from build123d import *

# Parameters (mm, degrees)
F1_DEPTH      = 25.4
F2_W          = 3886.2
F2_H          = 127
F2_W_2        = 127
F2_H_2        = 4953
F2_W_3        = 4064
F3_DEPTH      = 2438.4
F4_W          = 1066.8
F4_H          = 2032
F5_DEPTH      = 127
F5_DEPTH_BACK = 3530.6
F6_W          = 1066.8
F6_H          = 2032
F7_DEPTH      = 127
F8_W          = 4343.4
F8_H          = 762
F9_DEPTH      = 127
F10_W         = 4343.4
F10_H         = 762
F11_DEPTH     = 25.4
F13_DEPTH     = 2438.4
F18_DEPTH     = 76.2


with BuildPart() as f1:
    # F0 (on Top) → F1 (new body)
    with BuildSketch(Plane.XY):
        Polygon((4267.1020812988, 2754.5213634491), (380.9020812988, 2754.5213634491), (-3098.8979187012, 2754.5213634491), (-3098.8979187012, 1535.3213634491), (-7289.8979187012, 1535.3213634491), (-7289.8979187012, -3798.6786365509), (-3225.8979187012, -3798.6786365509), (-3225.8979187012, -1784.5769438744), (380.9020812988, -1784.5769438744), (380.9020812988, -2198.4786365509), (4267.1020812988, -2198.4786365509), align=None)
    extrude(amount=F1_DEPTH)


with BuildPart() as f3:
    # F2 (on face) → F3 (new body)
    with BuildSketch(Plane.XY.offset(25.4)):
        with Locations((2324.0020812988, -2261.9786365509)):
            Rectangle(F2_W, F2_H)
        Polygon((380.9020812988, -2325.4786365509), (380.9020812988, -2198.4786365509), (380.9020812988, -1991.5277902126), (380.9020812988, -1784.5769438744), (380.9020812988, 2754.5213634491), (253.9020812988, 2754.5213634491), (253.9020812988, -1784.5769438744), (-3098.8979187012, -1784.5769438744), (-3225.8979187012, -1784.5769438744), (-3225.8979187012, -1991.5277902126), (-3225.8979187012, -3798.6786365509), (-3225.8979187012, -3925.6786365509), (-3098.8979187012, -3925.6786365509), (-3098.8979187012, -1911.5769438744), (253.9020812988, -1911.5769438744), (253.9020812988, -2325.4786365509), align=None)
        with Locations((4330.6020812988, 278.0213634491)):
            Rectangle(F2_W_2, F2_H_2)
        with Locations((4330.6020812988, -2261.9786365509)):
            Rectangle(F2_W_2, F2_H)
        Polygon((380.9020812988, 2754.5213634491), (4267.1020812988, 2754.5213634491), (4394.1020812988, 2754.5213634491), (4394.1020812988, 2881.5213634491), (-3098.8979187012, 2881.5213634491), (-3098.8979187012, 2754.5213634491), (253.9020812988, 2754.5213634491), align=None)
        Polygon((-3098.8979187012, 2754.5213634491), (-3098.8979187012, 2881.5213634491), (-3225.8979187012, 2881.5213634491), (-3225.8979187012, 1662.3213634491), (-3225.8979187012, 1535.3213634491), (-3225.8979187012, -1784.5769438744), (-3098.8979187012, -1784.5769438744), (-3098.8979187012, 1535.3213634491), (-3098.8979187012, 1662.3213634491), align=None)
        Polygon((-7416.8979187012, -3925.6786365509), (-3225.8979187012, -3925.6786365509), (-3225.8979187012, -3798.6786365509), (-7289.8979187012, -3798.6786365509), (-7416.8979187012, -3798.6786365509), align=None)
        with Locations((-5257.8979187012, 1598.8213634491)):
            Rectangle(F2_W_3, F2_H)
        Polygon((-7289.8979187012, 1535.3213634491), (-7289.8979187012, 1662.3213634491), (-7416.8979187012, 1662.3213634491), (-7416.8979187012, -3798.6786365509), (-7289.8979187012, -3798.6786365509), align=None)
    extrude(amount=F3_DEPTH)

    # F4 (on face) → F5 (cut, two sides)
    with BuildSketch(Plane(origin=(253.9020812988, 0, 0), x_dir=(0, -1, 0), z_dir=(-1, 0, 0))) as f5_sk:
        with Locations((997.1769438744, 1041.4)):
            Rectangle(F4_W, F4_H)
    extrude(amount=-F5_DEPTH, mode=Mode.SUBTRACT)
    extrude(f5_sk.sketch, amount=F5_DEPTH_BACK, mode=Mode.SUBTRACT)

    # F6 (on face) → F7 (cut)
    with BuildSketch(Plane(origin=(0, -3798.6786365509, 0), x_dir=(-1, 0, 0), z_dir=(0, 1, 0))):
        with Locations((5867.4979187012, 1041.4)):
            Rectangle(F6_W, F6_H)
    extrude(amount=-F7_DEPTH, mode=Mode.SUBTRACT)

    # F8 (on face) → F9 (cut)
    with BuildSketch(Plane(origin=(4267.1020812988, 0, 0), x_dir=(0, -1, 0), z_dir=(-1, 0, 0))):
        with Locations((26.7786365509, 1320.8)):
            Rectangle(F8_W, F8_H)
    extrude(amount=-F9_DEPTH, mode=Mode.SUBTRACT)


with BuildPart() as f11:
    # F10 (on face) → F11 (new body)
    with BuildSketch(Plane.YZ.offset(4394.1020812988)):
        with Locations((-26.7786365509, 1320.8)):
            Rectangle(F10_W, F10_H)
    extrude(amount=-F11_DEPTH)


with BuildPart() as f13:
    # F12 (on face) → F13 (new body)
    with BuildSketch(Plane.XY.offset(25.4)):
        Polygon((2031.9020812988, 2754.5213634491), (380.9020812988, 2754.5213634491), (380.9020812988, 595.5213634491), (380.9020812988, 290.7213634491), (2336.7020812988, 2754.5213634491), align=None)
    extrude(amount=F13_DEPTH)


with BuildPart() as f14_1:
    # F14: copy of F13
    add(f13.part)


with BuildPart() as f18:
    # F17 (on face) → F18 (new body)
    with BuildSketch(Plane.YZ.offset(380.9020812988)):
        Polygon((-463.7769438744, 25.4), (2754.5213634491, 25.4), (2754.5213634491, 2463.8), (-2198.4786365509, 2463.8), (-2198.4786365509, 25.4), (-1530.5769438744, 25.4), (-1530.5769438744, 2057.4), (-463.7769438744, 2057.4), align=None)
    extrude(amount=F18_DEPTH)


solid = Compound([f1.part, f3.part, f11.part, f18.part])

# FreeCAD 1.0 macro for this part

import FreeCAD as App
import Part
import Sketcher

V = App.Vector
Q = App.Units.Quantity


def add_polygon(sketch, points):
    """Adds a closed chain of lines whose ends are joined by coincident constraints."""
    first, n = sketch.GeometryCount, len(points)
    for a, b in zip(points, points[1:] + points[:1]):
        sketch.addGeometry(Part.LineSegment(App.Vector(*a, 0), App.Vector(*b, 0)), False)
    for i in range(n):
        sketch.addConstraint(Sketcher.Constraint("Coincident", first + i, 2, first + (i + 1) % n, 1))

doc = App.newDocument("Part")
body = doc.addObject("PartDesign::Body", "Body")

sketch1 = body.newObject("Sketcher::SketchObject", "Sketch")
sketch1.AttachmentSupport = (doc.getObject("XY_Plane"), [""])
sketch1.MapMode = "FlatFace"
add_polygon(sketch1, [(4267, 2755), (-3099, 2755), (-3099, 1535), (-7290, 1535), (-7290, -3799), (-3226, -3799), (-3226, -1785), (381, -1785), (381, -2198), (4267, -2198)])
sketch1.addConstraint([
    Sketcher.Constraint("Horizontal", 0),
    Sketcher.Constraint("Vertical", 1),
    Sketcher.Constraint("Horizontal", 2),
    Sketcher.Constraint("Vertical", 3),
    Sketcher.Constraint("Horizontal", 4),
    Sketcher.Constraint("Vertical", 5),
    Sketcher.Constraint("Horizontal", 6),
    Sketcher.Constraint("Vertical", 7),
    Sketcher.Constraint("Horizontal", 8),
    Sketcher.Constraint("Vertical", 9),
    Sketcher.Constraint("DistanceX", 0, 2, 0, 1, Q("290 in")),
    Sketcher.Constraint("DistanceX", 2, 2, 2, 1, Q("165 in")),
    Sketcher.Constraint("DistanceX", 4, 1, 4, 2, Q("160 in")),
    Sketcher.Constraint("DistanceX", 6, 1, 6, 2, Q("142 in")),
    Sketcher.Constraint("DistanceY", 1, 2, 1, 1, Q("48 in")),
    Sketcher.Constraint("DistanceY", 3, 2, 3, 1, Q("210 in")),
    Sketcher.Constraint("DistanceY", 9, 1, 9, 2, Q("195 in")),
    Sketcher.Constraint("DistanceY", 5, 1, 5, 2, 2014.101693),
    Sketcher.Constraint("DistanceX", 0, 2, -1, 1, 3098.897919),
    Sketcher.Constraint("DistanceY", -1, 1, 0, 2, 2754.521363),
])
pad1 = body.newObject("PartDesign::Pad", "Pad")
pad1.Profile = sketch1
pad1.Length = Q("1 in")
body2 = doc.addObject("PartDesign::Body", "Body001")

sketch2 = body2.newObject("Sketcher::SketchObject", "Sketch001")
sketch2.AttachmentSupport = (doc.getObject("XY_Plane001"), [""])
sketch2.MapMode = "FlatFace"
sketch2.AttachmentOffset = App.Placement(V(0, 0, 1 * 25.4), App.Rotation())
add_polygon(sketch2, [(-3099, -3926), (-3099, -1912), (254, -1912), (254, -2325), (4394, -2325), (4394, 2882), (-3226, 2882), (-3226, 1662), (-7417, 1662), (-7417, -3926)])
add_polygon(sketch2, [(4267, -2198), (381, -2198), (381, 2755), (4267, 2755)])
add_polygon(sketch2, [(254, 2755), (254, -1785), (-3099, -1785), (-3099, 2755)])
add_polygon(sketch2, [(-7290, 1535), (-3226, 1535), (-3226, -3799), (-7290, -3799)])
sketch2.addConstraint([
    Sketcher.Constraint("Vertical", 0),
    Sketcher.Constraint("Horizontal", 1),
    Sketcher.Constraint("Vertical", 2),
    Sketcher.Constraint("Horizontal", 3),
    Sketcher.Constraint("Vertical", 4),
    Sketcher.Constraint("Horizontal", 5),
    Sketcher.Constraint("Vertical", 6),
    Sketcher.Constraint("Horizontal", 7),
    Sketcher.Constraint("Vertical", 8),
    Sketcher.Constraint("Horizontal", 9),
    Sketcher.Constraint("Horizontal", 10),
    Sketcher.Constraint("Vertical", 11),
    Sketcher.Constraint("Horizontal", 12),
    Sketcher.Constraint("Vertical", 13),
    Sketcher.Constraint("Vertical", 14),
    Sketcher.Constraint("Horizontal", 15),
    Sketcher.Constraint("Vertical", 16),
    Sketcher.Constraint("Horizontal", 17),
    Sketcher.Constraint("Horizontal", 18),
    Sketcher.Constraint("Vertical", 19),
    Sketcher.Constraint("Horizontal", 20),
    Sketcher.Constraint("Vertical", 21),
    Sketcher.Constraint("Horizontal", 12, 2, 16, 2),
    Sketcher.Constraint("Vertical", 2, 2, 14, 2),
    Sketcher.Constraint("Vertical", 9, 2, 15, 2),
    Sketcher.Constraint("Vertical", 6, 2, 18, 2),
    Sketcher.Constraint("DistanceX", 1, 1, 1, 2, Q("132 in")),
    Sketcher.Constraint("DistanceX", 3, 1, 3, 2, Q("163 in")),
    Sketcher.Constraint("DistanceX", 5, 2, 5, 1, Q("300 in")),
    Sketcher.Constraint("DistanceX", 7, 2, 7, 1, Q("165 in")),
    Sketcher.Constraint("DistanceX", 10, 2, 10, 1, Q("153 in")),
    Sketcher.Constraint("DistanceX", 18, 1, 18, 2, Q("160 in")),
    Sketcher.Constraint("DistanceY", 4, 1, 4, 2, Q("205 in")),
    Sketcher.Constraint("DistanceY", 6, 2, 6, 1, Q("48 in")),
    Sketcher.Constraint("DistanceY", 8, 2, 8, 1, Q("220 in")),
    Sketcher.Constraint("DistanceY", 11, 1, 11, 2, Q("195 in")),
    Sketcher.Constraint("DistanceY", 19, 2, 19, 1, Q("210 in")),
    Sketcher.Constraint("DistanceX", 2, 2, 10, 2, Q("5 in")),
    Sketcher.Constraint("DistanceY", 2, 2, 10, 2, Q("5 in")),
    Sketcher.Constraint("DistanceY", 1, 2, 14, 2, Q("5 in")),
    Sketcher.Constraint("DistanceY", 18, 2, 6, 2, Q("5 in")),
    Sketcher.Constraint("DistanceY", 0, 1, 0, 2, 2014.101693),
    Sketcher.Constraint("DistanceX", 0, 2, -1, 1, 3098.897919),
    Sketcher.Constraint("DistanceY", 0, 2, -1, 1, 1911.576944),
])
pad2 = body2.newObject("PartDesign::Pad", "Pad001")
pad2.Profile = sketch2
pad2.Length = Q("96 in")

sketch3 = body2.newObject("Sketcher::SketchObject", "Sketch002")
sketch3.AttachmentSupport = (doc.getObject("YZ_Plane001"), [""])
sketch3.MapMode = "FlatFace"
sketch3.AttachmentOffset = App.Placement(V(0, 0, 253.902081), App.Rotation())
add_polygon(sketch3, [(-464, 2057), (-464, 25), (-1531, 25), (-1531, 2057)])
sketch3.addConstraint([
    Sketcher.Constraint("Vertical", 0),
    Sketcher.Constraint("Horizontal", 1),
    Sketcher.Constraint("Vertical", 2),
    Sketcher.Constraint("Horizontal", 3),
    Sketcher.Constraint("DistanceX", 1, 2, 1, 1, Q("42 in")),
    Sketcher.Constraint("DistanceY", 0, 2, 0, 1, Q("80 in")),
    Sketcher.Constraint("DistanceY", -1, 1, 0, 2, Q("1 in")),
    Sketcher.Constraint("DistanceX", 0, 2, -1, 1, 463.776944),
])
pocket1 = body2.newObject("PartDesign::Pocket", "Pocket")
pocket1.Profile = sketch3
pocket1.Type = "TwoLengths"
pocket1.Length = Q("5 in")
pocket1.Length2 = Q("139 in")
pocket1.Reversed = True

sketch4 = body2.newObject("Sketcher::SketchObject", "Sketch003")
sketch4.AttachmentSupport = (doc.getObject("XZ_Plane001"), [""])
sketch4.MapMode = "FlatFace"
sketch4.AttachmentOffset = App.Placement(V(0, 0, 3798.678637), App.Rotation())
add_polygon(sketch4, [(-5334, 2057), (-5334, 25), (-6401, 25), (-6401, 2057)])
sketch4.addConstraint([
    Sketcher.Constraint("Vertical", 0),
    Sketcher.Constraint("Horizontal", 1),
    Sketcher.Constraint("Vertical", 2),
    Sketcher.Constraint("Horizontal", 3),
    Sketcher.Constraint("DistanceX", 1, 2, 1, 1, Q("42 in")),
    Sketcher.Constraint("DistanceY", 0, 2, 0, 1, Q("80 in")),
    Sketcher.Constraint("DistanceY", -1, 1, 0, 2, Q("1 in")),
    Sketcher.Constraint("DistanceX", 0, 2, -1, 1, 5334.097919),
])
pocket2 = body2.newObject("PartDesign::Pocket", "Pocket001")
pocket2.Profile = sketch4
pocket2.Length = Q("5 in")
pocket2.Reversed = True

sketch5 = body2.newObject("Sketcher::SketchObject", "Sketch004")
sketch5.AttachmentSupport = (doc.getObject("YZ_Plane001"), [""])
sketch5.MapMode = "FlatFace"
sketch5.AttachmentOffset = App.Placement(V(0, 0, 4267.102081), App.Rotation())
add_polygon(sketch5, [(2145, 1702), (2145, 940), (-2198, 940), (-2198, 1702)])
sketch5.addConstraint([
    Sketcher.Constraint("Vertical", 0),
    Sketcher.Constraint("Horizontal", 1),
    Sketcher.Constraint("Vertical", 2),
    Sketcher.Constraint("Horizontal", 3),
    Sketcher.Constraint("DistanceX", 1, 2, 1, 1, Q("171 in")),
    Sketcher.Constraint("DistanceY", 0, 2, 0, 1, Q("30 in")),
    Sketcher.Constraint("DistanceY", -1, 1, 0, 2, Q("37 in")),
    Sketcher.Constraint("DistanceX", -1, 1, 0, 2, 2144.921363),
])
pocket3 = body2.newObject("PartDesign::Pocket", "Pocket002")
pocket3.Profile = sketch5
pocket3.Length = Q("5 in")
pocket3.Reversed = True
body3 = doc.addObject("PartDesign::Body", "Body002")

sketch6 = body3.newObject("Sketcher::SketchObject", "Sketch005")
sketch6.AttachmentSupport = (doc.getObject("YZ_Plane002"), [""])
sketch6.MapMode = "FlatFace"
sketch6.AttachmentOffset = App.Placement(V(0, 0, 4394.102081), App.Rotation())
add_polygon(sketch6, [(-2198, 1702), (-2198, 940), (2145, 940), (2145, 1702)])
sketch6.addConstraint([
    Sketcher.Constraint("Vertical", 0),
    Sketcher.Constraint("Horizontal", 1),
    Sketcher.Constraint("Vertical", 2),
    Sketcher.Constraint("Horizontal", 3),
    Sketcher.Constraint("DistanceX", 1, 1, 1, 2, Q("171 in")),
    Sketcher.Constraint("DistanceY", 0, 2, 0, 1, Q("30 in")),
    Sketcher.Constraint("DistanceY", -1, 1, 0, 2, Q("37 in")),
    Sketcher.Constraint("DistanceX", 0, 2, -1, 1, 2198.478637),
])
pad3 = body3.newObject("PartDesign::Pad", "Pad002")
pad3.Profile = sketch6
pad3.Length = Q("1 in")
pad3.Reversed = True
body4 = doc.addObject("PartDesign::Body", "Body003")

sketch7 = body4.newObject("Sketcher::SketchObject", "Sketch006")
sketch7.AttachmentSupport = (doc.getObject("XY_Plane003"), [""])
sketch7.MapMode = "FlatFace"
sketch7.AttachmentOffset = App.Placement(V(0, 0, 1 * 25.4), App.Rotation())
add_polygon(sketch7, [(381, 2755), (381, 291), (2337, 2755)])
sketch7.addConstraint([
    Sketcher.Constraint("Vertical", 0),
    Sketcher.Constraint("Horizontal", 2),
    Sketcher.Constraint("DistanceX", 2, 2, 2, 1, Q("77 in")),
    Sketcher.Constraint("DistanceY", 0, 2, 0, 1, Q("97 in")),
    Sketcher.Constraint("DistanceX", -1, 1, 0, 2, 380.902081),
    Sketcher.Constraint("DistanceY", -1, 1, 0, 2, 290.721363),
])
pad4 = body4.newObject("PartDesign::Pad", "Pad003")
pad4.Profile = sketch7
pad4.Length = Q("96 in")
body5 = doc.addObject("PartDesign::Body", "Body004")

sketch8 = body5.newObject("Sketcher::SketchObject", "Sketch007")
sketch8.AttachmentSupport = (doc.getObject("YZ_Plane004"), [""])
sketch8.MapMode = "FlatFace"
sketch8.AttachmentOffset = App.Placement(V(0, 0, 380.902081), App.Rotation())
add_polygon(sketch8, [(-464, 25), (2755, 25), (2755, 2464), (-2198, 2464), (-2198, 25), (-1531, 25), (-1531, 2057), (-464, 2057)])
sketch8.addConstraint([
    Sketcher.Constraint("Horizontal", 0),
    Sketcher.Constraint("Vertical", 1),
    Sketcher.Constraint("Horizontal", 2),
    Sketcher.Constraint("Vertical", 3),
    Sketcher.Constraint("Horizontal", 4),
    Sketcher.Constraint("Vertical", 5),
    Sketcher.Constraint("Horizontal", 6),
    Sketcher.Constraint("Vertical", 7),
    Sketcher.Constraint("Horizontal", 0, 2, 3, 2),
    Sketcher.Constraint("DistanceX", 2, 2, 2, 1, Q("195 in")),
    Sketcher.Constraint("DistanceX", 6, 1, 6, 2, Q("42 in")),
    Sketcher.Constraint("DistanceY", 1, 1, 1, 2, Q("96 in")),
    Sketcher.Constraint("DistanceY", 5, 1, 5, 2, Q("80 in")),
    Sketcher.Constraint("DistanceY", -1, 1, 0, 2, Q("1 in")),
    Sketcher.Constraint("DistanceX", 0, 1, 0, 2, 3218.298307),
    Sketcher.Constraint("DistanceX", -1, 1, 0, 2, 2754.521363),
])
pad5 = body5.newObject("PartDesign::Pad", "Pad004")
pad5.Profile = sketch8
pad5.Length = Q("3 in")
body4.Visibility = False

doc.recompute()
